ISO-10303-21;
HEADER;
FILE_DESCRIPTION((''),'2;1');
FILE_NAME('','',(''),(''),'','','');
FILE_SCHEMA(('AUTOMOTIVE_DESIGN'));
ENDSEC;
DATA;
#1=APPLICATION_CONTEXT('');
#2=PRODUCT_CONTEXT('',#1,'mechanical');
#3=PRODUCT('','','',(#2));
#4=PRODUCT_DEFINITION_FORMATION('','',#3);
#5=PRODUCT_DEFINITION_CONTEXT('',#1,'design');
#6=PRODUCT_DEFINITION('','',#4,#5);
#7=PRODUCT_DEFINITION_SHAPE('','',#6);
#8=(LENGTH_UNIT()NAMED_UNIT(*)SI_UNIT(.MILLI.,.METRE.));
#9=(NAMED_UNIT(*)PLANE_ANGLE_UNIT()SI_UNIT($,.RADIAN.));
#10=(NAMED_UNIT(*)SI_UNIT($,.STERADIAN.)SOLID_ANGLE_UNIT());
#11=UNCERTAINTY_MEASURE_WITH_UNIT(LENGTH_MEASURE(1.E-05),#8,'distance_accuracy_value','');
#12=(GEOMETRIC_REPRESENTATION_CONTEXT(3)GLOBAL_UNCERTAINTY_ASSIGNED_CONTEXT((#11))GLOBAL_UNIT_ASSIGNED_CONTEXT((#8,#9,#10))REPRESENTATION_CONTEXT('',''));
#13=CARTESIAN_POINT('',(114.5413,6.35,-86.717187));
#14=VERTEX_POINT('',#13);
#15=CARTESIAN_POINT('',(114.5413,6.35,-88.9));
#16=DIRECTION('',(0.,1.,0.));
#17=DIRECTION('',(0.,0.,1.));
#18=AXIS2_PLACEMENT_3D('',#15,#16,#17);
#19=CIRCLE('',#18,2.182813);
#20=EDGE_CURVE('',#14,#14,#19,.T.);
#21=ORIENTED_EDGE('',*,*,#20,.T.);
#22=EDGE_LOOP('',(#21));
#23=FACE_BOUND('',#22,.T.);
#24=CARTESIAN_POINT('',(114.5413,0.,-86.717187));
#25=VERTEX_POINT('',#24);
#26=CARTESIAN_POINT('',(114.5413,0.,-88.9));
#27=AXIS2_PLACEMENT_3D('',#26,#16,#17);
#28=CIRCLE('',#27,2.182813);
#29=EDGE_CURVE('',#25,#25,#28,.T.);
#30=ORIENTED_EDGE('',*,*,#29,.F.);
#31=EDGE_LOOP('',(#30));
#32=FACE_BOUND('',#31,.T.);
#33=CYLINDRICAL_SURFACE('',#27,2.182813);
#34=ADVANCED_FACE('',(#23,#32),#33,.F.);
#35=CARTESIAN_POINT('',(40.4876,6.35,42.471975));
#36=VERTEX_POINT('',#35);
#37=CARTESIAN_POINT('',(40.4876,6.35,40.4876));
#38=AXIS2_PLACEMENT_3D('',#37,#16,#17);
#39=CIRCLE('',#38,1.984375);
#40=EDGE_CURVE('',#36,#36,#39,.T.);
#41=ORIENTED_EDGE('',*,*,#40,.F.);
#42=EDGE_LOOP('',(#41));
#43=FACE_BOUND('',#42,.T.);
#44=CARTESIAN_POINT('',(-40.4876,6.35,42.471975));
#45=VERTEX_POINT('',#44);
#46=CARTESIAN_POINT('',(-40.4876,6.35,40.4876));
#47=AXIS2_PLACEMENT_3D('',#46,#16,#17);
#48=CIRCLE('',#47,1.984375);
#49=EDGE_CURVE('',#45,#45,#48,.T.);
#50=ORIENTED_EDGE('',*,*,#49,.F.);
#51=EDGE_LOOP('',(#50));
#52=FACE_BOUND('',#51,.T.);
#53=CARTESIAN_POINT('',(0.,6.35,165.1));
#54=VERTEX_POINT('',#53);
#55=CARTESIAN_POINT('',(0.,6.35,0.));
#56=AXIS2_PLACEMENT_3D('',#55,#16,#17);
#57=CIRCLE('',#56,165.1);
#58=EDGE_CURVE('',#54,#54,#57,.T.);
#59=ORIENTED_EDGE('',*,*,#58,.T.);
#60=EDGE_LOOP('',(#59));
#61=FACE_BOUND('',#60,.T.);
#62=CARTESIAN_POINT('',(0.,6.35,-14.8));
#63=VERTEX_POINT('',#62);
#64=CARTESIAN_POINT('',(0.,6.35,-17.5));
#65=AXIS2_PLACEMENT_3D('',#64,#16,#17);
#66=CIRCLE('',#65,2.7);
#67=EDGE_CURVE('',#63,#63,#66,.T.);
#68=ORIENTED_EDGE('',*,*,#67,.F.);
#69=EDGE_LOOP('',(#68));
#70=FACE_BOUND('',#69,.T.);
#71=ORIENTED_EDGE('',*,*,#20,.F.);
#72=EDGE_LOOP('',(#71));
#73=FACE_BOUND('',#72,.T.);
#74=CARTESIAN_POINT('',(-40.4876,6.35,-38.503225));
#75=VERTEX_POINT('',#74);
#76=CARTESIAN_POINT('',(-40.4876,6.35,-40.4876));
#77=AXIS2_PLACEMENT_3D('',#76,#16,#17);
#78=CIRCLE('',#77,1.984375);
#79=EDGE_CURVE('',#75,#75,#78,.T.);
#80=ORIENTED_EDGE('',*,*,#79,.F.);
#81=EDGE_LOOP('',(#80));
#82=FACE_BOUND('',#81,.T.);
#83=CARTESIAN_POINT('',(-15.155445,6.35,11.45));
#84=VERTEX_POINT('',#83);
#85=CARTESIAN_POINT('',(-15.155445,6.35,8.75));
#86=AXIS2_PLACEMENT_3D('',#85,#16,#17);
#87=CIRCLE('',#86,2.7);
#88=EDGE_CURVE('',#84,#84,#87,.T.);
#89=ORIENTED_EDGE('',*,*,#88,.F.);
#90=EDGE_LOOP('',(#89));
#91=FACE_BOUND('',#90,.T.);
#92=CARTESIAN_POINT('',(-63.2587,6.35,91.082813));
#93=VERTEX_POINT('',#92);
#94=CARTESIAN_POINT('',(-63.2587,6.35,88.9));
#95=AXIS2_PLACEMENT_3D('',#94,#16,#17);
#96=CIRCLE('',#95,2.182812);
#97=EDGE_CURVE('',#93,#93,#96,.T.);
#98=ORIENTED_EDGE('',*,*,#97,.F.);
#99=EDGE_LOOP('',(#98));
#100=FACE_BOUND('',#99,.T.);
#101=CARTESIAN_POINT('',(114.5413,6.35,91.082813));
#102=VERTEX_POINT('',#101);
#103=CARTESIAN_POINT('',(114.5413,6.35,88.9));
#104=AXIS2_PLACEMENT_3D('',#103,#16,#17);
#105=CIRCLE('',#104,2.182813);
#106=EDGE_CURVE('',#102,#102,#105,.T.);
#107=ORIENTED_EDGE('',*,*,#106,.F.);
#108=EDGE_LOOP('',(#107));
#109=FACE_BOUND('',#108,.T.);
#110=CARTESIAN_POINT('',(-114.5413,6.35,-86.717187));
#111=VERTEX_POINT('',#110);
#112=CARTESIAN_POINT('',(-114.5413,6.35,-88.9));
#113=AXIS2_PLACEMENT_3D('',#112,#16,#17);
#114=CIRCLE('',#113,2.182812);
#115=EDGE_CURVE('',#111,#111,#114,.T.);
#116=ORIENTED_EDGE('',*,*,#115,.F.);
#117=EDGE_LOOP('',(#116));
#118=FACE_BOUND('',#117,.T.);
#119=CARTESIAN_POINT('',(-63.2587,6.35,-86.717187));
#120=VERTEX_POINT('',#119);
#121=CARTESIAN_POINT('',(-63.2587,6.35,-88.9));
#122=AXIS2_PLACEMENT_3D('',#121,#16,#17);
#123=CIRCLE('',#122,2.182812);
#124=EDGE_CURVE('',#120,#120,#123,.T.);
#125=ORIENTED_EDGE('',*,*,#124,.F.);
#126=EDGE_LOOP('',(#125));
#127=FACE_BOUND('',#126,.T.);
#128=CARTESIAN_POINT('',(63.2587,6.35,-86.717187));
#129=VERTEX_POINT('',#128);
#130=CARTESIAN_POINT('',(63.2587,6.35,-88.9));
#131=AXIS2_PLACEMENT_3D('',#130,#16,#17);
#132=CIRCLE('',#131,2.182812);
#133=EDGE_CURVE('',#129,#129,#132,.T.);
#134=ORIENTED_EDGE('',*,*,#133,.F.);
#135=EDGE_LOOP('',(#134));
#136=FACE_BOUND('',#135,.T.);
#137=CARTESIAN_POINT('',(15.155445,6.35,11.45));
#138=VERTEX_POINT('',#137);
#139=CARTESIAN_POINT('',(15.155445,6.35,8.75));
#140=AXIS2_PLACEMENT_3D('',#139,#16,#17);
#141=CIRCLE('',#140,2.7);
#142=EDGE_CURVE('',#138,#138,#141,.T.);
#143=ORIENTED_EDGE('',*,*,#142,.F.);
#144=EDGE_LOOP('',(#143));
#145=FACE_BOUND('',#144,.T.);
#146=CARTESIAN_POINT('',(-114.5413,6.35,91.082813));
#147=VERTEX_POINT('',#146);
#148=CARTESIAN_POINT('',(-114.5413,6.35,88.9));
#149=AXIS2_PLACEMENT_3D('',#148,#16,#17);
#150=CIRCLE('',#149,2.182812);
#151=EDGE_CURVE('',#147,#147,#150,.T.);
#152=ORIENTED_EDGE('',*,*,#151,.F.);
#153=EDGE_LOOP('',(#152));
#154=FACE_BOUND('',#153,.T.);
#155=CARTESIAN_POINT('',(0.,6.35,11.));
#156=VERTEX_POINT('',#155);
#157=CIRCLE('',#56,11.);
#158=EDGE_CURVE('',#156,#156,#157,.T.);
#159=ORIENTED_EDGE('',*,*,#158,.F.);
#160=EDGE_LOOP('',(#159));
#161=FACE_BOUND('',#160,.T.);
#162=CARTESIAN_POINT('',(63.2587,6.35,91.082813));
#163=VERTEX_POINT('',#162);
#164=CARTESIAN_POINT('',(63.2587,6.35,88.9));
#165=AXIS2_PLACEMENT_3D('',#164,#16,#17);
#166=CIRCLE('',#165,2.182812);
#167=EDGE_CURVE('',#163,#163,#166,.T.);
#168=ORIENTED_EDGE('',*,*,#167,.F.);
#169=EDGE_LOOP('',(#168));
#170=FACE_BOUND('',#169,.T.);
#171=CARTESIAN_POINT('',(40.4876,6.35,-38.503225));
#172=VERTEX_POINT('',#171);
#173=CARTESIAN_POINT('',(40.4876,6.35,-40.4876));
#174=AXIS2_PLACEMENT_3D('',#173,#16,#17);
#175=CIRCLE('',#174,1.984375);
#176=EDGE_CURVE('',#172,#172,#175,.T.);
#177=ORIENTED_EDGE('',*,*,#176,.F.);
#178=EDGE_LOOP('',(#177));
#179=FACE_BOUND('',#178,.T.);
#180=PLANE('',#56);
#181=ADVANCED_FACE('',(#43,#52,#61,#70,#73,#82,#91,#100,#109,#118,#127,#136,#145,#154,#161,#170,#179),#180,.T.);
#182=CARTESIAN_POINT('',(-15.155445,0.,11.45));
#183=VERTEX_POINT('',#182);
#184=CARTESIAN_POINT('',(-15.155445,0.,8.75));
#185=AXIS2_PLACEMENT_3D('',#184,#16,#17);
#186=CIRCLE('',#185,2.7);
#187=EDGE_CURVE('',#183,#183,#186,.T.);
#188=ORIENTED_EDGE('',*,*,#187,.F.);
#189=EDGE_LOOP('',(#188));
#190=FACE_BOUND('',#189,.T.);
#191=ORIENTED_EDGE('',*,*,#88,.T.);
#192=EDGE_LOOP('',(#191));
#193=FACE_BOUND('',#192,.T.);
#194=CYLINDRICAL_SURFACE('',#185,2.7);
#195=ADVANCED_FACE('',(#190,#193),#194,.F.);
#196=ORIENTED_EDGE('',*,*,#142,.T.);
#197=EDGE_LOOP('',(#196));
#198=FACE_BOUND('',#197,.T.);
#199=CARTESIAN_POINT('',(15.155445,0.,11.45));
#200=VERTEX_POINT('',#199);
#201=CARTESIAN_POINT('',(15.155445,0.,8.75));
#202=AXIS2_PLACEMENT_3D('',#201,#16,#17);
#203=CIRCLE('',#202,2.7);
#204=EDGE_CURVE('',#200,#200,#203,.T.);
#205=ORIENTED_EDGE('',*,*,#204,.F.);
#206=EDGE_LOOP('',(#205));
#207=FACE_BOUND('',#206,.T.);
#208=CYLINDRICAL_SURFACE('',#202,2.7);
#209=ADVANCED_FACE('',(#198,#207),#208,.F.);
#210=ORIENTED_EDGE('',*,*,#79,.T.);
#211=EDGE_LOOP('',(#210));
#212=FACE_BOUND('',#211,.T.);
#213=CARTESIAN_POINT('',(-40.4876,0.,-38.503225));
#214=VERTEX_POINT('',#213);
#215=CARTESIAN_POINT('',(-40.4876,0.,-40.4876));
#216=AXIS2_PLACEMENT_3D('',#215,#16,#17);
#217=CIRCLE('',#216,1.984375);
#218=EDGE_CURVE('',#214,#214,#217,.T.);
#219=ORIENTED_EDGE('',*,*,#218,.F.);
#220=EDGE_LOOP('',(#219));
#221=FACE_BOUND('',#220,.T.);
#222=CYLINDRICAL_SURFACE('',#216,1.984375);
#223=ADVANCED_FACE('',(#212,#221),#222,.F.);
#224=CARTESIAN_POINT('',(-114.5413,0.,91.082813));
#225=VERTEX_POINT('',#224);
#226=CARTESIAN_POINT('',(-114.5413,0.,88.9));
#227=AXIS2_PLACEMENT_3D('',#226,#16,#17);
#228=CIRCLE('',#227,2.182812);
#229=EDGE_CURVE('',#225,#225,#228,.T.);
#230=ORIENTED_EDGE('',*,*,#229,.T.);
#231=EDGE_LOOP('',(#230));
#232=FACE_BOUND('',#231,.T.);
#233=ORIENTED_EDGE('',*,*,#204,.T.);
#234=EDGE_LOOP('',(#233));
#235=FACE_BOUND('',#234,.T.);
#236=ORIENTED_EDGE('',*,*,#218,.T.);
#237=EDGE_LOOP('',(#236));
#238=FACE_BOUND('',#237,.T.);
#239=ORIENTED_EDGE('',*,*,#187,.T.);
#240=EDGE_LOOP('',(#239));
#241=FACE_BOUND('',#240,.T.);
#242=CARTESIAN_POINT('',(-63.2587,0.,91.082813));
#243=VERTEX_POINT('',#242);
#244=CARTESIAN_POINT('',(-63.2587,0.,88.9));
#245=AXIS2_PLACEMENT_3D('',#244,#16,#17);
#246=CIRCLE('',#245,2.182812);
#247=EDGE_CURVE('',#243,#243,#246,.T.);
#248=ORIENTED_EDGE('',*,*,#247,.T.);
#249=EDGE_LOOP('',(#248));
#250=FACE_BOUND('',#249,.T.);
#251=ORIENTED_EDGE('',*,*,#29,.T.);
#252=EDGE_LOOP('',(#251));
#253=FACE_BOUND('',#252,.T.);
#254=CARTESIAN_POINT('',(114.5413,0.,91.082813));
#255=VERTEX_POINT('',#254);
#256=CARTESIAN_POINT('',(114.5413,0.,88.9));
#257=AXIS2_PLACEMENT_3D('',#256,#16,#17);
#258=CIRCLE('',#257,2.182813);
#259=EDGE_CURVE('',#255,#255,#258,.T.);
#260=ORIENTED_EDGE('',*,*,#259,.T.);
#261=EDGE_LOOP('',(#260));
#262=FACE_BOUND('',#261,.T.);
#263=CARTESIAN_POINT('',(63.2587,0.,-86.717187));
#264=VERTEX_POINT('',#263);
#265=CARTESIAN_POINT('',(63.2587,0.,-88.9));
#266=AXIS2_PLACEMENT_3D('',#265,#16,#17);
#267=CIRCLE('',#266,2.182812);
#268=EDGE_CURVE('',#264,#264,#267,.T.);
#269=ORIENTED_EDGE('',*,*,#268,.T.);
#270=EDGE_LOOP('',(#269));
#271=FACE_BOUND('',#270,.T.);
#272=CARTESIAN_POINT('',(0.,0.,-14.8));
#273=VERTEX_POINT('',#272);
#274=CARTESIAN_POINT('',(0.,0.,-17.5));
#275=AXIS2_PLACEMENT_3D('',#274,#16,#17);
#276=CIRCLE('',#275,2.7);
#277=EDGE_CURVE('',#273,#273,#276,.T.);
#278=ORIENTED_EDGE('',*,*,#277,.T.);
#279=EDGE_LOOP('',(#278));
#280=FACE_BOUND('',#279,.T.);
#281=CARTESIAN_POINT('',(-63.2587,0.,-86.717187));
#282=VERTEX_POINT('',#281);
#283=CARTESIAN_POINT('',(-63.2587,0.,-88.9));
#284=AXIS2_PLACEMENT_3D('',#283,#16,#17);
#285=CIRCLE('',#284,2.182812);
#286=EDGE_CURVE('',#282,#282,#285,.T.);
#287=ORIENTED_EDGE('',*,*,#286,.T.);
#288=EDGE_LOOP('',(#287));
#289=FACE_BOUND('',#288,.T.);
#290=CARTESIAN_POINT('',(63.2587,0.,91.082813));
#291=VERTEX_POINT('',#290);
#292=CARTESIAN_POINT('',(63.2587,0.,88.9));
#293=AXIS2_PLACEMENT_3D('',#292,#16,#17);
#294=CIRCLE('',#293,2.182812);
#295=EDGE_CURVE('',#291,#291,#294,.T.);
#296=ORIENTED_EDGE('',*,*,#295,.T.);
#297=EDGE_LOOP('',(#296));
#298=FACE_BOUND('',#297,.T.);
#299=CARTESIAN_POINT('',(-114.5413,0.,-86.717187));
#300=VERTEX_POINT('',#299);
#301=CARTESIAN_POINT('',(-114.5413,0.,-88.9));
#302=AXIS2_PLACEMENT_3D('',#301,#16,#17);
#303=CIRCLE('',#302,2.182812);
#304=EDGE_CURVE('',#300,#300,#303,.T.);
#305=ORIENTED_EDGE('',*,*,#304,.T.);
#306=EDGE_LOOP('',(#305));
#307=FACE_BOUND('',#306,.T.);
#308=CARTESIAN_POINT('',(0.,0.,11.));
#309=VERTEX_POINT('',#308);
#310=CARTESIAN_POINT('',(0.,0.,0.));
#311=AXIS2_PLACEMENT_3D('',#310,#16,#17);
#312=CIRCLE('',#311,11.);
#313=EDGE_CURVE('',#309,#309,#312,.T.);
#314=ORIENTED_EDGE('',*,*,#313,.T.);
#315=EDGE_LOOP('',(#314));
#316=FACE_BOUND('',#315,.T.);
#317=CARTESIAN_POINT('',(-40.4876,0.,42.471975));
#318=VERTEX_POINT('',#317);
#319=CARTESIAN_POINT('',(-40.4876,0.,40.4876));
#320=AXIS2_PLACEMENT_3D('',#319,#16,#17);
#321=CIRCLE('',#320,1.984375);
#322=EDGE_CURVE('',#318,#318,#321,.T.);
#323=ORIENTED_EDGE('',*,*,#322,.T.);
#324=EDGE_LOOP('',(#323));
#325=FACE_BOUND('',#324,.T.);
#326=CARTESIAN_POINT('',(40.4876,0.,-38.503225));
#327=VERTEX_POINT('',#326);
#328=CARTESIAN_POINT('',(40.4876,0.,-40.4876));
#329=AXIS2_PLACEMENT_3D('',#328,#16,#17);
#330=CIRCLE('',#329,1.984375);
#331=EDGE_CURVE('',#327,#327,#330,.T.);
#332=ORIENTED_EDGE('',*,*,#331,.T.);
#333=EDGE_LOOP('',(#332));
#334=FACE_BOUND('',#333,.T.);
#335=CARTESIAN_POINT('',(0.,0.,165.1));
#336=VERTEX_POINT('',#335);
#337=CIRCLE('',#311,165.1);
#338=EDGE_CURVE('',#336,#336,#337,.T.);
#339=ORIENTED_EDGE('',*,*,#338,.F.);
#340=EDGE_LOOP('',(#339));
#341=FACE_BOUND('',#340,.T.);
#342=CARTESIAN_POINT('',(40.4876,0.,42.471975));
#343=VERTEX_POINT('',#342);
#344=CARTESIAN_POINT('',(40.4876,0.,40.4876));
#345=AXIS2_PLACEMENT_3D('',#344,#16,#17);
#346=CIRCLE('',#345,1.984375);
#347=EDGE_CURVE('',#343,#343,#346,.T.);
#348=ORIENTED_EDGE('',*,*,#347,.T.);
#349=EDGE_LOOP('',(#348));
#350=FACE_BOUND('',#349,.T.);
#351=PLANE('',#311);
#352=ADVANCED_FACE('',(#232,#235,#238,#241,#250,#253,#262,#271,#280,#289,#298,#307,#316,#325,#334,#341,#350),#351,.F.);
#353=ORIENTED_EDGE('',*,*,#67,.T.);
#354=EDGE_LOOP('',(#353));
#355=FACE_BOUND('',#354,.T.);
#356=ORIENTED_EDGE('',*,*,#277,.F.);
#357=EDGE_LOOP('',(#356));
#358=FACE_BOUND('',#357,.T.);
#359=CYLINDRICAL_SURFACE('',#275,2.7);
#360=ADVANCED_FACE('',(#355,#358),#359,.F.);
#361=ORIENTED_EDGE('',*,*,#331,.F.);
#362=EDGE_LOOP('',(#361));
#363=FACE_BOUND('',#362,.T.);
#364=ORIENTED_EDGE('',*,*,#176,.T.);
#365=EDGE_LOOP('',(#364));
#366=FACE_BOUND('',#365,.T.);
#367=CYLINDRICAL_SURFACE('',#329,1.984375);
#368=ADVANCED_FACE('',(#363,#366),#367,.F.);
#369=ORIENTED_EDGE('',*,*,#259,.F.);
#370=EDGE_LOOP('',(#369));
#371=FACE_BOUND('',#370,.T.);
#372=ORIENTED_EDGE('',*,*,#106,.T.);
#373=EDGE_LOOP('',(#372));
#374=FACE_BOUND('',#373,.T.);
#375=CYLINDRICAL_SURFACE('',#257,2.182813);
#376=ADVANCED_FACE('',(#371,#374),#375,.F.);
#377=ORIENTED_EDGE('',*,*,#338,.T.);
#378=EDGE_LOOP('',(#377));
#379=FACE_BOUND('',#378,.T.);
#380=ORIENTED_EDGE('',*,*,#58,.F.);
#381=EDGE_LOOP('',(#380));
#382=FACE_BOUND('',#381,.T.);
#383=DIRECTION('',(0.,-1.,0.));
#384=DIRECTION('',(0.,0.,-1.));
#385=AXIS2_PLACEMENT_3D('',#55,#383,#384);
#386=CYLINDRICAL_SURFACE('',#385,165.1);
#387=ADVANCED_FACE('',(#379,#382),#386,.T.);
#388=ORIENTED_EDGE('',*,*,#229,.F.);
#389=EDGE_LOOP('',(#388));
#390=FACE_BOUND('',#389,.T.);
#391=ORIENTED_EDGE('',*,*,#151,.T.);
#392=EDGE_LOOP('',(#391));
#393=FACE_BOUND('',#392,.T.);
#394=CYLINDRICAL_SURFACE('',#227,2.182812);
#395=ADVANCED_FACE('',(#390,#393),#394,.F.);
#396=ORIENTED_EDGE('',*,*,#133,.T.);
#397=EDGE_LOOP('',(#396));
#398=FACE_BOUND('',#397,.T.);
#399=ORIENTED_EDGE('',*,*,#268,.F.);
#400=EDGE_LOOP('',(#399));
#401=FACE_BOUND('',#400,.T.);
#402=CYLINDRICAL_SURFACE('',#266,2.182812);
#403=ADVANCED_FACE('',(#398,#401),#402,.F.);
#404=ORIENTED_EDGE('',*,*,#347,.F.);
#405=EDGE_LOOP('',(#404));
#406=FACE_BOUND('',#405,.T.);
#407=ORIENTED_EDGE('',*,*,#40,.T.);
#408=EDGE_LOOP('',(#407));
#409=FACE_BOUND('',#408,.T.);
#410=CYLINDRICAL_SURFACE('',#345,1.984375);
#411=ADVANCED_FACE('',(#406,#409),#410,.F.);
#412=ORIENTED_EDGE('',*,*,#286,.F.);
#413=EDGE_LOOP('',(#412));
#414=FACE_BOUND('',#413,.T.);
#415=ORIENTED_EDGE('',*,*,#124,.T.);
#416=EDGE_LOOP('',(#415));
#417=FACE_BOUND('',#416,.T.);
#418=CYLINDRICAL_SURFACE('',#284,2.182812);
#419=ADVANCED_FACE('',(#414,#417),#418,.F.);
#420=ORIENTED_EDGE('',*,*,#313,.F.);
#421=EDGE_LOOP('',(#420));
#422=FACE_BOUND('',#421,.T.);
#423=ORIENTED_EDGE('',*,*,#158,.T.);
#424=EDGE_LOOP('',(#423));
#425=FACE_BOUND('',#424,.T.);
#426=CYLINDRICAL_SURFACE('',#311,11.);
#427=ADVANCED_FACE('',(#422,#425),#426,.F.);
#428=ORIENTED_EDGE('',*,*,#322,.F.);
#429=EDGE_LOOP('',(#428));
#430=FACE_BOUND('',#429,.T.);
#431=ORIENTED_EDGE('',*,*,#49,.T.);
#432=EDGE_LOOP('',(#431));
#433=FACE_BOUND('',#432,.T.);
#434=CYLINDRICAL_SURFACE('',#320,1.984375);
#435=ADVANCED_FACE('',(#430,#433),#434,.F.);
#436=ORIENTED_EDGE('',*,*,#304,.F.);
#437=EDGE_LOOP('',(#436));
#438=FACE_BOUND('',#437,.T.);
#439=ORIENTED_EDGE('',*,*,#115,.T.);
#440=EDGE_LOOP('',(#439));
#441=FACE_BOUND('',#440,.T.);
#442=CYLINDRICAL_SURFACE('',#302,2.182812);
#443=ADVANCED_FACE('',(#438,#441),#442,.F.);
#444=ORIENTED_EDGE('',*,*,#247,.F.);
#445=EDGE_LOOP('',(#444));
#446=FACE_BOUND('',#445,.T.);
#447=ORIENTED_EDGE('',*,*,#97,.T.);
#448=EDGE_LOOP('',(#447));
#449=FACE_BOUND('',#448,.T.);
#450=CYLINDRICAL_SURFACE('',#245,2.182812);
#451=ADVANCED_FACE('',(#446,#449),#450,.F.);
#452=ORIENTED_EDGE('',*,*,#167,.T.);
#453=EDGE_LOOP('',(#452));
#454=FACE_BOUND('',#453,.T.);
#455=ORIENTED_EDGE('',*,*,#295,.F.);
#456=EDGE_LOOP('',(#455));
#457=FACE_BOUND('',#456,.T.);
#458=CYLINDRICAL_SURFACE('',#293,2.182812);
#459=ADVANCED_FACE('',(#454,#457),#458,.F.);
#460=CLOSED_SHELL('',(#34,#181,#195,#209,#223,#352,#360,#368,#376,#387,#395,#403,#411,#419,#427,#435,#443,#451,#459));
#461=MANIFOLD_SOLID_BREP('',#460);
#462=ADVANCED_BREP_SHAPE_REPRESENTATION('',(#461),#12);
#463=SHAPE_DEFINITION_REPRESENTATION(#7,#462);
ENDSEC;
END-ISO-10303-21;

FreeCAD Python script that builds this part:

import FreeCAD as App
import Part
import Sketcher
from FreeCAD import Vector
Q = App.Units.Quantity

doc = App.newDocument("Part")
params = doc.addObject("Spreadsheet::Sheet", "Params")
for row, (alias, value) in enumerate([
    ("sketch1_diameter", "13 in"),
    ("pad1_length", "0.25 in"),
    ("sketch2_diameter", "0.15625 in"),
    ("sketch3_diameter", "0.171875 in"),
], start=1):
    params.set(f"A{row}", alias)
    params.set(f"B{row}", "=" + value)
    params.setAlias(f"B{row}", alias)

body = doc.addObject("PartDesign::Body", "Body")

sketch1 = doc.addObject("Sketcher::SketchObject", "Sketch")
body.addObject(sketch1)
sketch1.AttachmentSupport = (doc.XZ_Plane, [""])
sketch1.MapMode = "FlatFace"
sketch1.addGeometry(Part.Circle(Vector(0, 0, 0), Vector(0, 0, 1), 165.1), False)
sketch1.addConstraint([
    Sketcher.Constraint("Coincident", 0, 3, -1, 1),
    Sketcher.Constraint("Diameter", 0, Q("13 in")),
])
sketch1.setExpression("Constraints[1]", "Params.sketch1_diameter")
pad1 = doc.addObject("PartDesign::Pad", "Pad")
body.addObject(pad1)
pad1.Profile = sketch1
pad1.setExpression("Length", "Params.pad1_length")
pad1.Reversed = True

sketch2 = doc.addObject("Sketcher::SketchObject", "Sketch001")
body.addObject(sketch2)
sketch2.AttachmentSupport = (doc.XZ_Plane, [""])
sketch2.MapMode = "FlatFace"
sketch2.AttachmentOffset = App.Placement(Vector(0, 0, -0.25 * 25.4), App.Rotation())
sketch2.addGeometry([
    Part.Circle(Vector(0, 0, 0), Vector(0, 0, 1), 11),
    Part.Circle(Vector(-40.4876, -40.4876, 0), Vector(0, 0, 1), 1.984375),
    Part.Circle(Vector(-40.4876, 40.4876, 0), Vector(0, 0, 1), 1.984375),
    Part.Circle(Vector(40.4876, 40.4876, 0), Vector(0, 0, 1), 1.984375),
    Part.Circle(Vector(40.4876, -40.4876, 0), Vector(0, 0, 1), 1.984375),
    Part.Circle(Vector(0, -17.5, 0), Vector(0, 0, 1), 2.7),
    Part.Circle(Vector(-15.155445, 8.75, 0), Vector(0, 0, 1), 2.7),
    Part.Circle(Vector(15.155445, 8.75, 0), Vector(0, 0, 1), 2.7),
], False)
sketch2.addConstraint([
    Sketcher.Constraint("Coincident", 0, 3, -1, 1),
    Sketcher.Constraint("Equal", 1, 2),
    Sketcher.Constraint("Equal", 2, 3),
    Sketcher.Constraint("Equal", 3, 4),
    Sketcher.Constraint("Equal", 5, 6),
    Sketcher.Constraint("Equal", 6, 7),
    Sketcher.Constraint("Symmetric", 1, 3, 3, 3, -1, 1),
    Sketcher.Constraint("Symmetric", 2, 3, 4, 3, -1, 1),
    Sketcher.Constraint("Symmetric", 2, 3, 3, 3, -2),
    Sketcher.Constraint("Symmetric", 6, 3, 7, 3, -2),
    Sketcher.Constraint("PointOnObject", 5, 3, -2),
    Sketcher.Constraint("Diameter", 1, Q("0.15625 in")),
    Sketcher.Constraint("Diameter", 0, 22.0),
    Sketcher.Constraint("Diameter", 5, 5.4),
    Sketcher.Constraint("DistanceX", 1, 3, -1, 1, Q("1.594 in")),
    Sketcher.Constraint("DistanceY", 1, 3, -1, 1, Q("1.594 in")),
    Sketcher.Constraint("DistanceY", 5, 3, -1, 1, 17.5),
    Sketcher.Constraint("DistanceY", -1, 1, 6, 3, 8.75),
    Sketcher.Constraint("DistanceX", 6, 3, 7, 3, 30.310889),
])
sketch2.setExpression("Constraints[11]", "Params.sketch2_diameter")
pocket1 = doc.addObject("PartDesign::Pocket", "Pocket")
body.addObject(pocket1)
pocket1.Profile = sketch2
pocket1.Type = "ThroughAll"
pocket1.Reversed = True

sketch3 = doc.addObject("Sketcher::SketchObject", "Sketch002")
body.addObject(sketch3)
sketch3.AttachmentSupport = (doc.XZ_Plane, [""])
sketch3.MapMode = "FlatFace"
sketch3.AttachmentOffset = App.Placement(Vector(0, 0, -0.25 * 25.4), App.Rotation())
sketch3.addGeometry([
    Part.Circle(Vector(-114.5413, -88.9, 0), Vector(0, 0, 1), 2.182812),
    Part.Circle(Vector(-63.2587, -88.9, 0), Vector(0, 0, 1), 2.182812),
    Part.Circle(Vector(63.2587, -88.9, 0), Vector(0, 0, 1), 2.182812),
    Part.Circle(Vector(114.5413, -88.9, 0), Vector(0, 0, 1), 2.182812),
    Part.Circle(Vector(114.5413, 88.9, 0), Vector(0, 0, 1), 2.182812),
    Part.Circle(Vector(63.2587, 88.9, 0), Vector(0, 0, 1), 2.182812),
    Part.Circle(Vector(-63.2587, 88.9, 0), Vector(0, 0, 1), 2.182812),
    Part.Circle(Vector(-114.5413, 88.9, 0), Vector(0, 0, 1), 2.182812),
], False)
sketch3.addConstraint([
    Sketcher.Constraint("Equal", 0, 1),
    Sketcher.Constraint("Equal", 1, 2),
    Sketcher.Constraint("Equal", 2, 3),
    Sketcher.Constraint("Equal", 3, 4),
    Sketcher.Constraint("Equal", 4, 5),
    Sketcher.Constraint("Equal", 5, 6),
    Sketcher.Constraint("Equal", 6, 7),
    Sketcher.Constraint("Symmetric", 0, 3, 4, 3, -1, 1),
    Sketcher.Constraint("Symmetric", 1, 3, 5, 3, -1, 1),
    Sketcher.Constraint("Symmetric", 2, 3, 6, 3, -1, 1),
    Sketcher.Constraint("Symmetric", 3, 3, 7, 3, -1, 1),
    Sketcher.Constraint("Symmetric", 1, 3, 2, 3, -2),
    Sketcher.Constraint("Symmetric", 0, 3, 3, 3, -2),
    Sketcher.Constraint("Horizontal", 0, 3, 1, 3),
    Sketcher.Constraint("Diameter", 0, Q("0.171875 in")),
    Sketcher.Constraint("DistanceX", 0, 3, 2, 3, Q("7 in")),
    Sketcher.Constraint("DistanceY", 3, 3, 4, 3, Q("7 in")),
    Sketcher.Constraint("DistanceX", 0, 3, 1, 3, Q("2.019 in")),
])
sketch3.setExpression("Constraints[14]", "Params.sketch3_diameter")
pocket2 = doc.addObject("PartDesign::Pocket", "Pocket001")
body.addObject(pocket2)
pocket2.Profile = sketch3
pocket2.Type = "ThroughAll"
pocket2.Reversed = True

doc.recompute()
